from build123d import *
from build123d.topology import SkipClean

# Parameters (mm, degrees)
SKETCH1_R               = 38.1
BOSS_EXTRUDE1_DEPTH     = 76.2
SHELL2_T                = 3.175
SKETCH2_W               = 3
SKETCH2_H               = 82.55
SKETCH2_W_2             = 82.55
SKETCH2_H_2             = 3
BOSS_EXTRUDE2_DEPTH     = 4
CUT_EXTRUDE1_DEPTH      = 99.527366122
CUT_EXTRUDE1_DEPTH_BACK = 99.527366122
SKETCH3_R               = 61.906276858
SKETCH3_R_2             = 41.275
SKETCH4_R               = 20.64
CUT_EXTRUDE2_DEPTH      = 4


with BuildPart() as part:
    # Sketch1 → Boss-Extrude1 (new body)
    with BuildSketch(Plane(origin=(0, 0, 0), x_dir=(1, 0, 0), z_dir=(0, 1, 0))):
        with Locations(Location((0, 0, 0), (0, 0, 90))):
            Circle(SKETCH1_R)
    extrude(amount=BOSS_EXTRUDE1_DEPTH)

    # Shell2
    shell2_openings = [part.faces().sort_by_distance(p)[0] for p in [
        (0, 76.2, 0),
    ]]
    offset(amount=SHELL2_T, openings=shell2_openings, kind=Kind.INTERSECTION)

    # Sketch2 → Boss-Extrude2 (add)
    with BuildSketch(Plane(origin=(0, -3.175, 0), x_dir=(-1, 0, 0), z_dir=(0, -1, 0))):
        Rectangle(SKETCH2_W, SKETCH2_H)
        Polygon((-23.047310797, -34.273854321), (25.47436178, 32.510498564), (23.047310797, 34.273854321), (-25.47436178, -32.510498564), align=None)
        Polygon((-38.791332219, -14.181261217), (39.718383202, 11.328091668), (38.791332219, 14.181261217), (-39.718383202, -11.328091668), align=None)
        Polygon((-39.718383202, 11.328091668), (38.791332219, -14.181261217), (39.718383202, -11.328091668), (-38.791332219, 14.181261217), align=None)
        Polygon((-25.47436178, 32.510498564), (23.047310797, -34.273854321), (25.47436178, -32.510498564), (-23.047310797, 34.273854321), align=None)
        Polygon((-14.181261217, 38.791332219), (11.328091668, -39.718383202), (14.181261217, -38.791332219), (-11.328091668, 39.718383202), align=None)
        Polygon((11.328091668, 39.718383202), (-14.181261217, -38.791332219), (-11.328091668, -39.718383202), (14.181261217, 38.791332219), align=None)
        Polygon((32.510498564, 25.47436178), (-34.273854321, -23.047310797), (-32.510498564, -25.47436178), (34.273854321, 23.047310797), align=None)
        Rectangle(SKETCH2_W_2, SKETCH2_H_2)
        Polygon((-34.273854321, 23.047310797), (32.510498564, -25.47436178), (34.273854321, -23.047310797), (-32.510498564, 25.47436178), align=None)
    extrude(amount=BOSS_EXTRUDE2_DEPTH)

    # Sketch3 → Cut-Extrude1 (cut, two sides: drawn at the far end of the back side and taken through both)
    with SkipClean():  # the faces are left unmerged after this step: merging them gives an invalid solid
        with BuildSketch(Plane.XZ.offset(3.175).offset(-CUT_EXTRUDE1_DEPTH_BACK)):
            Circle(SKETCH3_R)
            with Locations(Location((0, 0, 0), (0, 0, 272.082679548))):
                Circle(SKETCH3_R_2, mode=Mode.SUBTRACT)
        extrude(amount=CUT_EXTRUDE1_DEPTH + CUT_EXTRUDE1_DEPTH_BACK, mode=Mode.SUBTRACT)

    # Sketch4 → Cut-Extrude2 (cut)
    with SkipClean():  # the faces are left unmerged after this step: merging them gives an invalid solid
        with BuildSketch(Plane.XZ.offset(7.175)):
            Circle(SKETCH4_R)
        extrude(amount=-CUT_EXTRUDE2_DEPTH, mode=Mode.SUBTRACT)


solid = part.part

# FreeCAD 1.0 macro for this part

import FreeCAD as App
import Part
import Sketcher
Q = App.Units.Quantity


def faces_at(feature, points):
    """Names of the faces that lie closest to the given points."""
    faces = feature.Shape.Faces
    near = lambda p: min(range(len(faces)), key=lambda i: faces[i].distToShape(Part.Vertex(*p))[0])
    return sorted({f"Face{near(p) + 1}" for p in points})


def add_polygon(sketch, points):
    """Adds a closed chain of lines whose ends are joined by coincident constraints."""
    first, n = sketch.GeometryCount, len(points)
    for a, b in zip(points, points[1:] + points[:1]):
        sketch.addGeometry(Part.LineSegment(App.Vector(*a, 0), App.Vector(*b, 0)), False)
    for i in range(n):
        sketch.addConstraint(Sketcher.Constraint("Coincident", first + i, 2, first + (i + 1) % n, 1))

doc = App.newDocument("Part")
body = doc.addObject("PartDesign::Body", "Body")

sketch1 = body.newObject("Sketcher::SketchObject", "Sketch")
sketch1.AttachmentSupport = (doc.getObject("XZ_Plane"), [""])
sketch1.MapMode = "FlatFace"
sketch1.addGeometry(Part.Circle(App.Vector(0, 0, 0), App.Vector(0, 0, 1), 38), False)
sketch1.addConstraint([
    Sketcher.Constraint("Coincident", 0, 3, -1, 1),
    Sketcher.Constraint("Diameter", 0, Q("3 in")),
])
pad1 = body.newObject("PartDesign::Pad", "Pad")
pad1.Profile = sketch1
pad1.Length = Q("3 in")
pad1.Reversed = True
doc.recompute()

thickness = body.newObject("PartDesign::Thickness", "Thickness")
thickness.Base = (pad1, faces_at(pad1, [(0, 76.2, 0)]))
thickness.Value = Q("0.125 in")
thickness.Reversed = False
thickness.Join = "Intersection"

sketch2 = body.newObject("Sketcher::SketchObject", "Sketch001")
sketch2.AttachmentSupport = (doc.getObject("XZ_Plane"), [""])
sketch2.MapMode = "FlatFace"
sketch2.AttachmentOffset = App.Placement(App.Vector(0, 0, 0.125 * 25.4), App.Rotation())
add_polygon(sketch2, [(1.5, 9.5), (1.5, 41.3), (-1.5, 41.3), (-1.5, 9.5), (-11.3, 39.7), (-14.2, 38.8), (-4.4, 8.5), (-23, 34.3), (-25.5, 32.5), (-6.8, 6.8), (-32.5, 25.5), (-34.3, 23), (-8.5, 4.4), (-38.8, 14.2), (-39.7, 11.3), (-9.5, 1.5), (-41.3, 1.5), (-41.3, -1.5), (-9.5, -1.5), (-39.7, -11.3), (-38.8, -14.2), (-8.5, -4.4), (-34.3, -23), (-32.5, -25.5), (-6.8, -6.8), (-25.5, -32.5), (-23, -34.3), (-4.4, -8.5), (-14.2, -38.8), (-11.3, -39.7), (-1.5, -9.5), (-1.5, -41.3), (1.5, -41.3), (1.5, -9.5), (11.3, -39.7), (14.2, -38.8), (4.4, -8.5), (23, -34.3), (25.5, -32.5), (6.8, -6.8), (32.5, -25.5), (34.3, -23), (8.5, -4.4), (38.8, -14.2), (39.7, -11.3), (9.5, -1.5), (41.3, -1.5), (41.3, 1.5), (9.5, 1.5), (39.7, 11.3), (38.8, 14.2), (8.5, 4.4), (34.3, 23), (32.5, 25.5), (6.8, 6.8), (25.5, 32.5), (23, 34.3), (4.4, 8.5), (14.2, 38.8), (11.3, 39.7)])
sketch2.addConstraint([
    Sketcher.Constraint("Vertical", 0),
    Sketcher.Constraint("Horizontal", 1),
    Sketcher.Constraint("Vertical", 2),
    Sketcher.Constraint("Horizontal", 15),
    Sketcher.Constraint("Vertical", 16),
    Sketcher.Constraint("Horizontal", 17),
    Sketcher.Constraint("Vertical", 30),
    Sketcher.Constraint("Horizontal", 31),
    Sketcher.Constraint("Vertical", 32),
    Sketcher.Constraint("Horizontal", 45),
    Sketcher.Constraint("Vertical", 46),
    Sketcher.Constraint("Horizontal", 47),
    Sketcher.Constraint("Symmetric", 0, 2, 30, 2, -1, 1),
    Sketcher.Constraint("Symmetric", 2, 2, 32, 2, -1, 1),
    Sketcher.Constraint("Symmetric", 3, 2, 33, 2, -1, 1),
    Sketcher.Constraint("Symmetric", 4, 2, 34, 2, -1, 1),
    Sketcher.Constraint("Symmetric", 5, 2, 35, 2, -1, 1),
    Sketcher.Constraint("Symmetric", 6, 2, 36, 2, -1, 1),
    Sketcher.Constraint("Symmetric", 7, 2, 37, 2, -1, 1),
    Sketcher.Constraint("Symmetric", 8, 2, 38, 2, -1, 1),
    Sketcher.Constraint("Symmetric", 9, 2, 39, 2, -1, 1),
    Sketcher.Constraint("Symmetric", 10, 2, 40, 2, -1, 1),
    Sketcher.Constraint("Symmetric", 11, 2, 41, 2, -1, 1),
    Sketcher.Constraint("Symmetric", 12, 2, 42, 2, -1, 1),
    Sketcher.Constraint("Symmetric", 13, 2, 43, 2, -1, 1),
    Sketcher.Constraint("Symmetric", 14, 2, 44, 2, -1, 1),
    Sketcher.Constraint("Symmetric", 16, 2, 46, 2, -1, 1),
    Sketcher.Constraint("Symmetric", 18, 2, 48, 2, -1, 1),
    Sketcher.Constraint("Symmetric", 19, 2, 49, 2, -1, 1),
    Sketcher.Constraint("Symmetric", 20, 2, 50, 2, -1, 1),
    Sketcher.Constraint("Symmetric", 21, 2, 51, 2, -1, 1),
    Sketcher.Constraint("Symmetric", 22, 2, 52, 2, -1, 1),
    Sketcher.Constraint("Symmetric", 23, 2, 53, 2, -1, 1),
    Sketcher.Constraint("Symmetric", 24, 2, 54, 2, -1, 1),
    Sketcher.Constraint("Symmetric", 25, 2, 55, 2, -1, 1),
    Sketcher.Constraint("Symmetric", 26, 2, 56, 2, -1, 1),
    Sketcher.Constraint("Symmetric", 27, 2, 57, 2, -1, 1),
    Sketcher.Constraint("Symmetric", 28, 2, 58, 2, -1, 1),
    Sketcher.Constraint("Symmetric", 29, 2, 32, 2, -2),
    Sketcher.Constraint("Symmetric", 28, 2, 33, 2, -2),
    Sketcher.Constraint("Symmetric", 27, 2, 34, 2, -2),
    Sketcher.Constraint("Symmetric", 26, 2, 35, 2, -2),
    Sketcher.Constraint("Symmetric", 25, 2, 36, 2, -2),
    Sketcher.Constraint("Symmetric", 24, 2, 37, 2, -2),
    Sketcher.Constraint("Symmetric", 23, 2, 38, 2, -2),
    Sketcher.Constraint("Symmetric", 22, 2, 39, 2, -2),
    Sketcher.Constraint("Symmetric", 21, 2, 40, 2, -2),
    Sketcher.Constraint("Symmetric", 20, 2, 41, 2, -2),
    Sketcher.Constraint("Symmetric", 19, 2, 42, 2, -2),
    Sketcher.Constraint("Symmetric", 18, 2, 43, 2, -2),
    Sketcher.Constraint("Symmetric", 17, 2, 44, 2, -2),
    Sketcher.Constraint("Perpendicular", 3, 4),
    Sketcher.Constraint("Perpendicular", 4, 5),
    Sketcher.Constraint("Perpendicular", 6, 7),
    Sketcher.Constraint("Perpendicular", 7, 8),
    Sketcher.Constraint("Perpendicular", 9, 10),
    Sketcher.Constraint("Perpendicular", 10, 11),
    Sketcher.Constraint("Perpendicular", 12, 13),
    Sketcher.Constraint("Perpendicular", 13, 14),
    Sketcher.Constraint("Perpendicular", 5, 18),
    Sketcher.Constraint("Perpendicular", 8, 21),
    Sketcher.Constraint("Perpendicular", 35, 48),
    Sketcher.Constraint("Perpendicular", 58, 59),
    Sketcher.Constraint("Equal", 47, 0),
    Sketcher.Constraint("Equal", 31, 16),
    Sketcher.Constraint("Equal", 3, 5),
    Sketcher.Constraint("Equal", 5, 6),
    Sketcher.Constraint("Equal", 4, 7),
    Sketcher.Constraint("Equal", 6, 8),
    Sketcher.Constraint("Equal", 8, 9),
    Sketcher.Constraint("Equal", 7, 10),
    Sketcher.Constraint("Equal", 9, 11),
    Sketcher.Constraint("Equal", 11, 12),
    Sketcher.Constraint("Equal", 10, 13),
    Sketcher.Constraint("Equal", 12, 14),
    Sketcher.Constraint("Angle", 3, Q("108 deg")),
    Sketcher.Constraint("Angle", 6, Q("126 deg")),
    Sketcher.Constraint("DistanceY", -1, 1, 0, 2, Q("1.625 in")),
    Sketcher.Constraint("DistanceX", 1, 2, 1, 1, 3.0),
    Sketcher.Constraint("Distance", 4, 3.0),
    Sketcher.Constraint("DistanceY", -1, 1, 7, 2, 32.510499),
])
pad2 = body.newObject("PartDesign::Pad", "Pad001")
pad2.Profile = sketch2
pad2.Length = 4

sketch3 = body.newObject("Sketcher::SketchObject", "Sketch002")
sketch3.AttachmentSupport = (doc.getObject("XZ_Plane"), [""])
sketch3.MapMode = "FlatFace"
sketch3.AttachmentOffset = App.Placement(App.Vector(0, 0, 0.125 * 25.4), App.Rotation())
sketch3.addGeometry([
    Part.Circle(App.Vector(0, 0, 0), App.Vector(0, 0, 1), 62),
    Part.Circle(App.Vector(0, 0, 0), App.Vector(0, 0, 1), 41),
], False)
sketch3.addConstraint([
    Sketcher.Constraint("Coincident", 0, 3, -1, 1),
    Sketcher.Constraint("Coincident", 1, 3, -1, 1),
    Sketcher.Constraint("Diameter", 1, Q("3.25 in")),
    Sketcher.Constraint("Diameter", 0, 123.812554),
])
pocket1 = body.newObject("PartDesign::Pocket", "Pocket")
pocket1.Profile = sketch3
pocket1.Type = "ThroughAll"
pocket1.Midplane = True

sketch4 = body.newObject("Sketcher::SketchObject", "Sketch003")
sketch4.AttachmentSupport = (doc.getObject("XZ_Plane"), [""])
sketch4.MapMode = "FlatFace"
sketch4.AttachmentOffset = App.Placement(App.Vector(0, 0, 7.175), App.Rotation())
sketch4.addGeometry(Part.Circle(App.Vector(0, 0, 0), App.Vector(0, 0, 1), 21), False)
sketch4.addConstraint([
    Sketcher.Constraint("Coincident", 0, 3, -1, 1),
    Sketcher.Constraint("Diameter", 0, 41.28),
])
pocket2 = body.newObject("PartDesign::Pocket", "Pocket001")
pocket2.Profile = sketch4
pocket2.Length = 4

doc.recompute()
